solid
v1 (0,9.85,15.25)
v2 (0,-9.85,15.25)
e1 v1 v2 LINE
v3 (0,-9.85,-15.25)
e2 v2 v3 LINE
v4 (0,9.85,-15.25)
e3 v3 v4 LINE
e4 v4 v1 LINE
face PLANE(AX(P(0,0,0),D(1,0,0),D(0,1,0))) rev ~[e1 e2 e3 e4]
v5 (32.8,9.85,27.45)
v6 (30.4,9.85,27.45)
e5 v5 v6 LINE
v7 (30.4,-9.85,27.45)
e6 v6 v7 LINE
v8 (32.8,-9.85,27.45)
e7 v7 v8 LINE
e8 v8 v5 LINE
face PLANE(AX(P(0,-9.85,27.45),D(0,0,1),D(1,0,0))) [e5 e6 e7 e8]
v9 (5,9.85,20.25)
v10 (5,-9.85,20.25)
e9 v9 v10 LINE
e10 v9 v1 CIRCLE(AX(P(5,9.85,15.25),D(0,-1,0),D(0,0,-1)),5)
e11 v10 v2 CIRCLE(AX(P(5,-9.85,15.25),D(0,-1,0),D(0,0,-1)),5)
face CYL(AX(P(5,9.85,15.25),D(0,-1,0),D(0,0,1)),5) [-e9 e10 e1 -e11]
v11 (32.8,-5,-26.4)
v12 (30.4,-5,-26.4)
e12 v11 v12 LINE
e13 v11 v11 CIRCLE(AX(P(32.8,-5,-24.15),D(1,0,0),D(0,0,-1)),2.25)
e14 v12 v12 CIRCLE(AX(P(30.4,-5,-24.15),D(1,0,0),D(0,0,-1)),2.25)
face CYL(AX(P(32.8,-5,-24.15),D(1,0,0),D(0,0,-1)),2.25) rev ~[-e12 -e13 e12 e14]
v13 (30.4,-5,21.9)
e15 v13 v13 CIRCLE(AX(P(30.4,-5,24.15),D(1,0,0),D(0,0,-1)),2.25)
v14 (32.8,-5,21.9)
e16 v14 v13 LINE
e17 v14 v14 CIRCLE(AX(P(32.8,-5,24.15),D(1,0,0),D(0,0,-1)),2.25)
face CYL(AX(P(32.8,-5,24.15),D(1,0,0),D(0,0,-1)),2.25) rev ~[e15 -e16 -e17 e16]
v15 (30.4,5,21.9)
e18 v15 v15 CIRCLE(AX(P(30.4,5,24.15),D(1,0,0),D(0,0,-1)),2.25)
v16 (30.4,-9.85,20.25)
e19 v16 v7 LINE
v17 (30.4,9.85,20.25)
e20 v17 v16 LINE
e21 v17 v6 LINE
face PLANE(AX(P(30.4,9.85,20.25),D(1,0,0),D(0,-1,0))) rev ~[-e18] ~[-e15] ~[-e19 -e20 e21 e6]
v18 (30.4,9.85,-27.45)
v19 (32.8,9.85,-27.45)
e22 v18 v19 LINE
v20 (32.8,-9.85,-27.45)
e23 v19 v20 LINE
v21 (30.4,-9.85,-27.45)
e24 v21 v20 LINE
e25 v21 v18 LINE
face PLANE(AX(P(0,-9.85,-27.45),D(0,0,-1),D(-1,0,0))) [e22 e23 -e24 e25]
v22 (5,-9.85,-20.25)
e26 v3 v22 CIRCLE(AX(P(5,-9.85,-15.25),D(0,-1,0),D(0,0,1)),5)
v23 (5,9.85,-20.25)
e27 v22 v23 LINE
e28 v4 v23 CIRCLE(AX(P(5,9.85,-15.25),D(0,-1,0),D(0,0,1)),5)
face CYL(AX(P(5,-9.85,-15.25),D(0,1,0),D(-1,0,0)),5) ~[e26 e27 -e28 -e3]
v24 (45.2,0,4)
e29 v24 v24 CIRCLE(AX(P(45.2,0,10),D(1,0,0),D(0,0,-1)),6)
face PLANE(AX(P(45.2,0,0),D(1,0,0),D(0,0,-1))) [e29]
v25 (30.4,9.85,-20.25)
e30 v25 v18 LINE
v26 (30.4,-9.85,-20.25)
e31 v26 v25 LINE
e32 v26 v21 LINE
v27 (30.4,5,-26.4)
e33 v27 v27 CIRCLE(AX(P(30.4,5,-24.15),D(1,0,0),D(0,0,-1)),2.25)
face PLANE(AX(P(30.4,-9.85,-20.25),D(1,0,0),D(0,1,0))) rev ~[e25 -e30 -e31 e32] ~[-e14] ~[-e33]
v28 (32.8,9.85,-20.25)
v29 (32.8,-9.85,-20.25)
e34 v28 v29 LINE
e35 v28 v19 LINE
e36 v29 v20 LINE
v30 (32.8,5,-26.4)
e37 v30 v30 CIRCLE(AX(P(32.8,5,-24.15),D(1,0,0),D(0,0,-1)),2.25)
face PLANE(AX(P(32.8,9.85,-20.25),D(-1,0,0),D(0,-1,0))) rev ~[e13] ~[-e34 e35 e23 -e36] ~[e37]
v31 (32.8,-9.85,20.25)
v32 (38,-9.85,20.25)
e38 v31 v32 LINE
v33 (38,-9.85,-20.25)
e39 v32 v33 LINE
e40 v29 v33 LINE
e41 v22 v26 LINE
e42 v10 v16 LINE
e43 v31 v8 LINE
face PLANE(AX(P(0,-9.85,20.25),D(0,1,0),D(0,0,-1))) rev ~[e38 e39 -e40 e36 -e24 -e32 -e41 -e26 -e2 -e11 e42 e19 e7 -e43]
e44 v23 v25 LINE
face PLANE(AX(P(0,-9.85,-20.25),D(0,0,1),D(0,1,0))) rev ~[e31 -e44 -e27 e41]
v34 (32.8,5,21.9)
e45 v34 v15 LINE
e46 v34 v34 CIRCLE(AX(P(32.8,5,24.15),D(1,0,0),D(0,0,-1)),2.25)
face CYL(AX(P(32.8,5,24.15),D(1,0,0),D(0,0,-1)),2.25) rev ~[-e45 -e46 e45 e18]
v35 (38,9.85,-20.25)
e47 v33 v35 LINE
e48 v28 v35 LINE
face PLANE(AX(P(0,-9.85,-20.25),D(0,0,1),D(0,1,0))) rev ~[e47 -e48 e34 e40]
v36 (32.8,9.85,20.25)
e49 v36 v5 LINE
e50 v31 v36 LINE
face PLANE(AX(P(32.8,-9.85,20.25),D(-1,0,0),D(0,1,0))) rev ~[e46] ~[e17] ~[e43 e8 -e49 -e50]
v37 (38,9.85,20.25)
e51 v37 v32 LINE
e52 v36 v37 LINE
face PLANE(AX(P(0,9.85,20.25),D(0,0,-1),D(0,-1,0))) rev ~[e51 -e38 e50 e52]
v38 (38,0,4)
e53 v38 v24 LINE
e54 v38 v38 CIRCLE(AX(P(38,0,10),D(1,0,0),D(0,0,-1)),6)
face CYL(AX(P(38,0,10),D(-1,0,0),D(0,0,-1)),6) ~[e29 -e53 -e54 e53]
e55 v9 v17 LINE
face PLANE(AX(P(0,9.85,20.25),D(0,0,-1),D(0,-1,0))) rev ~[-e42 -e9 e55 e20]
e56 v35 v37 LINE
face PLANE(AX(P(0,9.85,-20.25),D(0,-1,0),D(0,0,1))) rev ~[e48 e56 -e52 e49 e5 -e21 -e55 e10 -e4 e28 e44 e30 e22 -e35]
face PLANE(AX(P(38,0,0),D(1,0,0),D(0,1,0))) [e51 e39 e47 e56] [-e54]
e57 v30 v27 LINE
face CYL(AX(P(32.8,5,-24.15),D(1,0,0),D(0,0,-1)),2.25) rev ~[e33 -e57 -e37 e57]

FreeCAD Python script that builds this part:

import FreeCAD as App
import Part
import Sketcher

V = App.Vector
Q = App.Units.Quantity


def edges_at(feature, points):
    """Names of the edges that pass closest to the given points."""
    edges = feature.Shape.Edges
    near = lambda p: min(range(len(edges)), key=lambda i: edges[i].distToShape(Part.Vertex(*p))[0])
    return sorted({f"Edge{near(p) + 1}" for p in points})


def add_polygon(sketch, points):
    """Adds a closed chain of lines whose ends are joined by coincident constraints."""
    first, n = sketch.GeometryCount, len(points)
    for a, b in zip(points, points[1:] + points[:1]):
        sketch.addGeometry(Part.LineSegment(App.Vector(*a, 0), App.Vector(*b, 0)), False)
    for i in range(n):
        sketch.addConstraint(Sketcher.Constraint("Coincident", first + i, 2, first + (i + 1) % n, 1))

doc = App.newDocument("Part")
body = doc.addObject("PartDesign::Body", "Body")

# Sketch on YZ plane
sketch1 = doc.addObject("Sketcher::SketchObject", "Sketch")
body.addObject(sketch1)
sketch1.AttachmentSupport = (doc.YZ_Plane, [""])
sketch1.MapMode = "FlatFace"
add_polygon(sketch1, [(9.85, 20.25), (-9.85, 20.25), (-9.85, -20.25), (9.85, -20.25)])  # lines 0-3
sketch1.addConstraint([
    Sketcher.Constraint("Horizontal", 0),
    Sketcher.Constraint("Vertical", 1),
    Sketcher.Constraint("Horizontal", 2),
    Sketcher.Constraint("Vertical", 3),
    Sketcher.Constraint("Symmetric", 0, 2, 2, 2, -1, 1),
    Sketcher.Constraint("DistanceX", 0, 2, 0, 1, Q("19.7 mm")),
    Sketcher.Constraint("DistanceY", 1, 2, 1, 1, Q("40.5 mm")),
])
pad1 = doc.addObject("PartDesign::Pad", "Pad")
body.addObject(pad1)
pad1.Profile = sketch1
pad1.Length = 38

# Sketch on XY plane
sketch2 = doc.addObject("Sketcher::SketchObject", "Sketch001")
body.addObject(sketch2)
sketch2.AttachmentSupport = (doc.XY_Plane, [""])
sketch2.MapMode = "FlatFace"
sketch2.AttachmentOffset = App.Placement(V(0, 0, -20.25), App.Rotation())
add_polygon(sketch2, [(32.8, -9.85), (30.4, -9.85), (30.4, 9.85), (32.8, 9.85)])  # lines 0-3
sketch2.addConstraint([
    Sketcher.Constraint("Horizontal", 0),
    Sketcher.Constraint("Vertical", 1),
    Sketcher.Constraint("Horizontal", 2),
    Sketcher.Constraint("Vertical", 3),
    Sketcher.Constraint("DistanceX", 0, 2, 0, 1, Q("2.4 mm")),
    Sketcher.Constraint("DistanceY", 1, 1, 1, 2, Q("19.7 mm")),
    Sketcher.Constraint("DistanceX", -1, 1, 0, 2, Q("30.4 mm")),
    Sketcher.Constraint("DistanceY", 0, 2, -1, 1, Q("9.85 mm")),
])
pad2 = doc.addObject("PartDesign::Pad", "Pad001")
body.addObject(pad2)
pad2.Profile = sketch2
pad2.Length = 7.2
pad2.Reversed = True

# Sketch on XY plane
sketch3 = doc.addObject("Sketcher::SketchObject", "Sketch002")
body.addObject(sketch3)
sketch3.AttachmentSupport = (doc.XY_Plane, [""])
sketch3.MapMode = "FlatFace"
sketch3.AttachmentOffset = App.Placement(V(0, 0, 20.25), App.Rotation())
add_polygon(sketch3, [(32.8, -9.85), (32.8, 9.85), (30.4, 9.85), (30.4, -9.85)])  # lines 0-3
sketch3.addConstraint([
    Sketcher.Constraint("Vertical", 0),
    Sketcher.Constraint("Horizontal", 1),
    Sketcher.Constraint("Vertical", 2),
    Sketcher.Constraint("Horizontal", 3),
    Sketcher.Constraint("DistanceX", 1, 2, 1, 1, Q("2.4 mm")),
    Sketcher.Constraint("DistanceY", 0, 1, 0, 2, Q("19.7 mm")),
    Sketcher.Constraint("DistanceX", -1, 1, 0, 2, Q("32.8 mm")),
    Sketcher.Constraint("DistanceY", -1, 1, 0, 2, Q("9.85 mm")),
])
pad3 = doc.addObject("PartDesign::Pad", "Pad002")
body.addObject(pad3)
pad3.Profile = sketch3
pad3.Length = 7.2

# Sketch on YZ plane
sketch4 = doc.addObject("Sketcher::SketchObject", "Sketch003")
body.addObject(sketch4)
sketch4.AttachmentSupport = (doc.YZ_Plane, [""])
sketch4.MapMode = "FlatFace"
sketch4.AttachmentOffset = App.Placement(V(0, 0, 32.8), App.Rotation())
sketch4.addGeometry([
    Part.Circle(V(5, 24.15, 0), V(0, 0, 1), 2.25),
    Part.Circle(V(-5, 24.15, 0), V(0, 0, 1), 2.25),
    Part.Circle(V(5, -24.15, 0), V(0, 0, 1), 2.25),
    Part.Circle(V(-5, -24.15, 0), V(0, 0, 1), 2.25),
], False)
sketch4.addConstraint([
    Sketcher.Constraint("Equal", 0, 1),
    Sketcher.Constraint("Equal", 1, 2),
    Sketcher.Constraint("Equal", 2, 3),
    Sketcher.Constraint("Symmetric", 1, 3, 2, 3, -1, 1),
    Sketcher.Constraint("Symmetric", 0, 3, 3, 3, -1, 1),
    Sketcher.Constraint("Symmetric", 0, 3, 1, 3, -2),
    Sketcher.Constraint("Diameter", 0, Q("4.5 mm")),
    Sketcher.Constraint("DistanceX", 1, 3, 0, 3, Q("10 mm")),
    Sketcher.Constraint("DistanceY", -1, 1, 0, 3, Q("24.15 mm")),
])
pocket1 = doc.addObject("PartDesign::Pocket", "Pocket")
body.addObject(pocket1)
pocket1.Profile = sketch4
pocket1.Length = 7.2

# Sketch on YZ plane
sketch5 = doc.addObject("Sketcher::SketchObject", "Sketch004")
body.addObject(sketch5)
sketch5.AttachmentSupport = (doc.YZ_Plane, [""])
sketch5.MapMode = "FlatFace"
sketch5.AttachmentOffset = App.Placement(V(0, 0, 38), App.Rotation())
sketch5.addGeometry(Part.Circle(V(0, 10, 0), V(0, 0, 1), 6), False)
sketch5.addConstraint([
    Sketcher.Constraint("PointOnObject", 0, 3, -2),
    Sketcher.Constraint("Diameter", 0, Q("12 mm")),
    Sketcher.Constraint("DistanceY", -1, 1, 0, 3, Q("10 mm")),
])
pad4 = doc.addObject("PartDesign::Pad", "Pad003")
body.addObject(pad4)
pad4.Profile = sketch5
pad4.Length = 7.2
doc.recompute()

fillet = doc.addObject("PartDesign::Fillet", "Fillet")
body.addObject(fillet)
fillet.Base = (pad4, edges_at(pad4, [(0, 0, 20.25), (0, 0, -20.25)]))
fillet.Radius = 5

doc.recompute()
